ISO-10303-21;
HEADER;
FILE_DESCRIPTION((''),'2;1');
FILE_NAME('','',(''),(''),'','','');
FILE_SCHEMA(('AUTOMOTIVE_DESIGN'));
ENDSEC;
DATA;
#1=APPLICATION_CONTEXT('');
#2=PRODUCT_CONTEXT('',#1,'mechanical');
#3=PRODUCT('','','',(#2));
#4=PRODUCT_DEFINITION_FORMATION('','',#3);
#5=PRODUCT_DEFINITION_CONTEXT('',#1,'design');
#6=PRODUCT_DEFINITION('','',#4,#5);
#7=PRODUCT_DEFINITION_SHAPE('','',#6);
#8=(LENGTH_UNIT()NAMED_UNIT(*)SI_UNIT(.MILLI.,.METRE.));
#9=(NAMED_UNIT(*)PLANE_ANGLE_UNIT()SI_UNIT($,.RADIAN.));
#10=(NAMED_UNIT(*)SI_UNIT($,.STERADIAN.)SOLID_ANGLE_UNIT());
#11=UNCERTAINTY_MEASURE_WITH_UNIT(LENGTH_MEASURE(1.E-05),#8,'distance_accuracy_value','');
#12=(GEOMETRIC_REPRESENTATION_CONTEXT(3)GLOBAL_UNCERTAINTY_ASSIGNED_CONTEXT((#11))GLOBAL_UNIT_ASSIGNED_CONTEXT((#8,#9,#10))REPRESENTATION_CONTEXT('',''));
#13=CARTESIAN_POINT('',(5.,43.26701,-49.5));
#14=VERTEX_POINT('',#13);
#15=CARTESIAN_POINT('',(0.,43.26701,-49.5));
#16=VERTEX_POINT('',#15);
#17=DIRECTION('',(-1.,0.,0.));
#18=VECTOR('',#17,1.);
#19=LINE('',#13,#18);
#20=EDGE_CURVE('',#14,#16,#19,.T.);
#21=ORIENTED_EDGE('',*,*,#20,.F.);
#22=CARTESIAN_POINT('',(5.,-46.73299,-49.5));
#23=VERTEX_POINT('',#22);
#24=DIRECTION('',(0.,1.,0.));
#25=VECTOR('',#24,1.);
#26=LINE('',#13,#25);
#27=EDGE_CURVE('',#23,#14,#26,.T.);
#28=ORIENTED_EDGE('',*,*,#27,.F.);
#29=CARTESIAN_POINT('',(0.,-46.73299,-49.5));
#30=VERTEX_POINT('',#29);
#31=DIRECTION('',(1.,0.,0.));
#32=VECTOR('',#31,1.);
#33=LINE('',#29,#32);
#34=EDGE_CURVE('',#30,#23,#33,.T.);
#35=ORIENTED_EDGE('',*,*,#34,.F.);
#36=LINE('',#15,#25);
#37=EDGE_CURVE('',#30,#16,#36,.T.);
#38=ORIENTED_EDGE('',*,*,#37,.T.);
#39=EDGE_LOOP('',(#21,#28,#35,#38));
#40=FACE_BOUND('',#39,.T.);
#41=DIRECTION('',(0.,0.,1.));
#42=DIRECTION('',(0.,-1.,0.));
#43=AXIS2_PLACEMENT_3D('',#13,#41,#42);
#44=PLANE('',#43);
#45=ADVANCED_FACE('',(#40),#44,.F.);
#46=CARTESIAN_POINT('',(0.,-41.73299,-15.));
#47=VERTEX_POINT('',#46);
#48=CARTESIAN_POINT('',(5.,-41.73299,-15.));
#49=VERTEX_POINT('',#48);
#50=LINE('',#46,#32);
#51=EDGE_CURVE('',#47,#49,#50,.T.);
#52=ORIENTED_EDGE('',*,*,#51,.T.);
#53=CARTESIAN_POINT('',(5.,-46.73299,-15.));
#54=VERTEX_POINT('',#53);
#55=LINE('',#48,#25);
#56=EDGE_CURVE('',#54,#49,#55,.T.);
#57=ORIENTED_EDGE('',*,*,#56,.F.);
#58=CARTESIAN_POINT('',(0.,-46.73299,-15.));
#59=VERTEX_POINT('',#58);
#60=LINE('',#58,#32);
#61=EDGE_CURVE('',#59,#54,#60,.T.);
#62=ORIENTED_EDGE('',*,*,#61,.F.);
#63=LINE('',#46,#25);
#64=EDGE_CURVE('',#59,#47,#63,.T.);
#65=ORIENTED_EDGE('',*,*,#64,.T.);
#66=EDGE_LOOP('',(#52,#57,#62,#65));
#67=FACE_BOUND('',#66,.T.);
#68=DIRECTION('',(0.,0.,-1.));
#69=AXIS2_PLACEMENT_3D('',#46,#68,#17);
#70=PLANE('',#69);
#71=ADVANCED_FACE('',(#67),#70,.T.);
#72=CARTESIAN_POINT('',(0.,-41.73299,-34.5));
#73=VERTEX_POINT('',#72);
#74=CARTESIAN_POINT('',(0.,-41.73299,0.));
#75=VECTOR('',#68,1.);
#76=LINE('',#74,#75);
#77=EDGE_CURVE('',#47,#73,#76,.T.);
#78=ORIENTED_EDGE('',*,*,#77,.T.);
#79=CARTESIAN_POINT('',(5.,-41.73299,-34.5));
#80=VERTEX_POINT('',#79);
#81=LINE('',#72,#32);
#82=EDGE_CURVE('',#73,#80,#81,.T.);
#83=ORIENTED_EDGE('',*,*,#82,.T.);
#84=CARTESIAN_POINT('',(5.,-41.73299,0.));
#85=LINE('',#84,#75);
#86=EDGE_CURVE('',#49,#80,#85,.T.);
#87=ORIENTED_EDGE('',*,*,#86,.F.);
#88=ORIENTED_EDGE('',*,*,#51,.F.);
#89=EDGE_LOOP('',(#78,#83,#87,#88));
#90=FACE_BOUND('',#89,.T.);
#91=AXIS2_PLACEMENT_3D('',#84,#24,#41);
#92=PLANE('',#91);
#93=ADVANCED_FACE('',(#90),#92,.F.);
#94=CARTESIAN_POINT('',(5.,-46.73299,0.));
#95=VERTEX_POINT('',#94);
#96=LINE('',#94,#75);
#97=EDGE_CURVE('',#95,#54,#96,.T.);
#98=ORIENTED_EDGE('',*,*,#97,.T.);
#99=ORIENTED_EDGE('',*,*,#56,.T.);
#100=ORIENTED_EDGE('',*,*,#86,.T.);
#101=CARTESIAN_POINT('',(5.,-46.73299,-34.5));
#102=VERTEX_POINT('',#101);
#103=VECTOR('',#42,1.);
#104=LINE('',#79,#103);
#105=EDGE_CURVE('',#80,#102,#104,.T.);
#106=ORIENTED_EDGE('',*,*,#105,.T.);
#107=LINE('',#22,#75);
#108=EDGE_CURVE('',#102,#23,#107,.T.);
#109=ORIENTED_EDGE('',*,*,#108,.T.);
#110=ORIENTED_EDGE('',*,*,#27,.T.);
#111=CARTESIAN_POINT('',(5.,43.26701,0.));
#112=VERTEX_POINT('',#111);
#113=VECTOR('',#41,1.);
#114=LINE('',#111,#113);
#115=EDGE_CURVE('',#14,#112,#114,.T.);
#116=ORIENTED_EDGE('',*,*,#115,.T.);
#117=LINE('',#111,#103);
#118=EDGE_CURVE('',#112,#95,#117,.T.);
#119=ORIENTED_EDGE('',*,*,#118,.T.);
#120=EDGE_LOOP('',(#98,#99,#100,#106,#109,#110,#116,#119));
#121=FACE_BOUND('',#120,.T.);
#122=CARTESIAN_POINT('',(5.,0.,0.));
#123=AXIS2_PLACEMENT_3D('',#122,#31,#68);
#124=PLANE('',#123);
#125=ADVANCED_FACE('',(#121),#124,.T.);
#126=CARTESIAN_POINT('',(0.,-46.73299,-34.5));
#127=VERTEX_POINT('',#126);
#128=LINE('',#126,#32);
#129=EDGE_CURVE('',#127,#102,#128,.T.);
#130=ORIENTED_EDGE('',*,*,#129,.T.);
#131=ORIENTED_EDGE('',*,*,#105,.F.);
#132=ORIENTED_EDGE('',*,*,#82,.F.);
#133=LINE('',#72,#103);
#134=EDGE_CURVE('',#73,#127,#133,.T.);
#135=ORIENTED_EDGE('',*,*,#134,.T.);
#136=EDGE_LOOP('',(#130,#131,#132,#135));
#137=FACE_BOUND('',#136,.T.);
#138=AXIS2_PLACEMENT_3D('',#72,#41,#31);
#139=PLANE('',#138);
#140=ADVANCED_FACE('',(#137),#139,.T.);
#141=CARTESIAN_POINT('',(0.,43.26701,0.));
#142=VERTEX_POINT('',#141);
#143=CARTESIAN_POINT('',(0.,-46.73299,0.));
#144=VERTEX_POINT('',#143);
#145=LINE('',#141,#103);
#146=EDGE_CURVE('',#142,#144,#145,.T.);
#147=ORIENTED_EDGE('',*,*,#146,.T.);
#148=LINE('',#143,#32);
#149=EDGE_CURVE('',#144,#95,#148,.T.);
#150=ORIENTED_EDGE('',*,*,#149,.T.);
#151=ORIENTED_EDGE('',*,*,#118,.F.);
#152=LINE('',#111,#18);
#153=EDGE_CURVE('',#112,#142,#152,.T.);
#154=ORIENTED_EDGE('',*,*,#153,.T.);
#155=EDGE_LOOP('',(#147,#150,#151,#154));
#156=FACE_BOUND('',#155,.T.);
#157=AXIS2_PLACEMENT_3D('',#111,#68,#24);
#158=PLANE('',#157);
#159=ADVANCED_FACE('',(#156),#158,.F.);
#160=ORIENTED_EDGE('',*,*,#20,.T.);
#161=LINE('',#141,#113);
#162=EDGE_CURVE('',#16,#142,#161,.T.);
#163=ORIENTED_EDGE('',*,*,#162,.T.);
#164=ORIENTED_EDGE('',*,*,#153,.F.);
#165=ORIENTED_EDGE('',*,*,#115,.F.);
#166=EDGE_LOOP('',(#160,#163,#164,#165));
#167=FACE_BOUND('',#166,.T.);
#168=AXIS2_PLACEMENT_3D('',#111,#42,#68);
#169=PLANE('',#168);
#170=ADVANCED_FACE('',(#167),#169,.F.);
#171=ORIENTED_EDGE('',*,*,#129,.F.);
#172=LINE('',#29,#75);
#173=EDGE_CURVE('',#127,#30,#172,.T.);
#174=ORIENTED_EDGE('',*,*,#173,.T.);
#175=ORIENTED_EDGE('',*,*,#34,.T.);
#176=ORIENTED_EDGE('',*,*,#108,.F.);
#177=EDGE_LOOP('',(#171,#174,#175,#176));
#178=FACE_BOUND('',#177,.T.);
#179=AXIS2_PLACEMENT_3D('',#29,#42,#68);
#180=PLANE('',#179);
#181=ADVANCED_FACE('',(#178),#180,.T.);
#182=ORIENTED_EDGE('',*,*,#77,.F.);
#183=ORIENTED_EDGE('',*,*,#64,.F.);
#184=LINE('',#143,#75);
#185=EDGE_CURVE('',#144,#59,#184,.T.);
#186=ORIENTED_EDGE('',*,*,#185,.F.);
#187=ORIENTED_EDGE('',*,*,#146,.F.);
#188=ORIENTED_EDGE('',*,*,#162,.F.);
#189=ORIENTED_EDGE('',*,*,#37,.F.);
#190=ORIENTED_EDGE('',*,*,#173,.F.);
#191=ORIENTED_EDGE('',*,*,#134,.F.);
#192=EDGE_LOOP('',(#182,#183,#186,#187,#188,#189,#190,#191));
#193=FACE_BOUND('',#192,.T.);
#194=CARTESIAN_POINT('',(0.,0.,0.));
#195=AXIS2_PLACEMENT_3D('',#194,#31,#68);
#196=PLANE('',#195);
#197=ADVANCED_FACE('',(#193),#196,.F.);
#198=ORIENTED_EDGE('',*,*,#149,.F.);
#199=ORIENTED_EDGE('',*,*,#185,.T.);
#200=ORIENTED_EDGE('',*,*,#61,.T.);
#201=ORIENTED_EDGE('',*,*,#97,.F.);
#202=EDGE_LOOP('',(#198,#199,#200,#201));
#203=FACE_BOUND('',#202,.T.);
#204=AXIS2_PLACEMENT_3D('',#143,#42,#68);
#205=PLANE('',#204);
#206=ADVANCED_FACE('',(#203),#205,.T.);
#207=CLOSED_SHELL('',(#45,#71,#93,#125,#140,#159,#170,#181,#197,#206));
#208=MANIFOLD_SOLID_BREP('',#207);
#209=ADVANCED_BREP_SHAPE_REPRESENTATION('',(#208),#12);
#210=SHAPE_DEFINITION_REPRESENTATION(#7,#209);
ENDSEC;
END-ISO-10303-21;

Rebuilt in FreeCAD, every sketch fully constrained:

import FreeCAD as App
import Part
import Sketcher
from FreeCAD import Vector
Q = App.Units.Quantity


def add_polygon(sketch, points):
    """Adds a closed chain of lines whose ends are joined by coincident constraints."""
    first, n = sketch.GeometryCount, len(points)
    for a, b in zip(points, points[1:] + points[:1]):
        sketch.addGeometry(Part.LineSegment(App.Vector(*a, 0), App.Vector(*b, 0)), False)
    for i in range(n):
        sketch.addConstraint(Sketcher.Constraint("Coincident", first + i, 2, first + (i + 1) % n, 1))

doc = App.newDocument("Part")
params = doc.addObject("Spreadsheet::Sheet", "Params")
for row, (alias, value) in enumerate([
    ("sketch1_width", "85 mm"),
    ("sketch1_height", "49.5 mm"),
    ("pad1_length", "5 mm"),
    ("sketch2_width", "5 mm"),
    ("sketch2_height", "15 mm"),
    ("pad2_length", "5 mm"),
], start=1):
    params.set(f"A{row}", alias)
    params.set(f"B{row}", "=" + value)
    params.setAlias(f"B{row}", alias)

body = doc.addObject("PartDesign::Body", "Body")

sketch1 = doc.addObject("Sketcher::SketchObject", "Sketch")
body.addObject(sketch1)
sketch1.AttachmentSupport = (doc.YZ_Plane, [""])
sketch1.MapMode = "FlatFace"
add_polygon(sketch1, [(43.26701, 0), (-41.73299, 0), (-41.73299, -49.5), (43.26701, -49.5)])
sketch1.addConstraint([
    Sketcher.Constraint("Horizontal", 0),
    Sketcher.Constraint("Vertical", 1),
    Sketcher.Constraint("Horizontal", 2),
    Sketcher.Constraint("Vertical", 3),
    Sketcher.Constraint("PointOnObject", 0, 2, -1),
    Sketcher.Constraint("DistanceX", 0, 2, 0, 1, Q("85 mm")),
    Sketcher.Constraint("DistanceY", 1, 2, 1, 1, Q("49.5 mm")),
    Sketcher.Constraint("DistanceX", 0, 2, -1, 1, Q("41.73299 mm")),
])
sketch1.setExpression("Constraints[9]", "Params.sketch1_width")
sketch1.setExpression("Constraints[10]", "Params.sketch1_height")
pad1 = doc.addObject("PartDesign::Pad", "Pad")
body.addObject(pad1)
pad1.Profile = sketch1
pad1.setExpression("Length", "Params.pad1_length")

sketch2 = doc.addObject("Sketcher::SketchObject", "Sketch001")
body.addObject(sketch2)
sketch2.AttachmentSupport = (doc.YZ_Plane, [""])
sketch2.MapMode = "FlatFace"
sketch2.AttachmentOffset = App.Placement(Vector(0, 0, 5), App.Rotation())
add_polygon(sketch2, [(-41.73299, -34.5), (-46.73299, -34.5), (-46.73299, -49.5), (-41.73299, -49.5)])
add_polygon(sketch2, [(-41.73299, 0), (-46.73299, 0), (-46.73299, -15), (-41.73299, -15)])
sketch2.addConstraint([
    Sketcher.Constraint("Horizontal", 0),
    Sketcher.Constraint("Vertical", 1),
    Sketcher.Constraint("Horizontal", 2),
    Sketcher.Constraint("Vertical", 3),
    Sketcher.Constraint("Horizontal", 4),
    Sketcher.Constraint("Vertical", 5),
    Sketcher.Constraint("Horizontal", 6),
    Sketcher.Constraint("Vertical", 7),
    Sketcher.Constraint("PointOnObject", 4, 2, -1),
    Sketcher.Constraint("Vertical", 1, 2, 4, 2),
    Sketcher.Constraint("Vertical", 3, 2, 6, 2),
    Sketcher.Constraint("Equal", 3, 5),
    Sketcher.Constraint("DistanceX", 0, 2, 0, 1, Q("5 mm")),
    Sketcher.Constraint("DistanceY", 1, 2, 1, 1, Q("15 mm")),
    Sketcher.Constraint("DistanceY", 0, 2, -1, 1, Q("34.5 mm")),
    Sketcher.Constraint("DistanceX", 0, 2, -1, 1, Q("46.73299 mm")),
])
sketch2.setExpression("Constraints[20]", "Params.sketch2_width")
sketch2.setExpression("Constraints[21]", "Params.sketch2_height")
pad2 = doc.addObject("PartDesign::Pad", "Pad001")
body.addObject(pad2)
pad2.Profile = sketch2
pad2.setExpression("Length", "Params.pad2_length")
pad2.Reversed = True

doc.recompute()
